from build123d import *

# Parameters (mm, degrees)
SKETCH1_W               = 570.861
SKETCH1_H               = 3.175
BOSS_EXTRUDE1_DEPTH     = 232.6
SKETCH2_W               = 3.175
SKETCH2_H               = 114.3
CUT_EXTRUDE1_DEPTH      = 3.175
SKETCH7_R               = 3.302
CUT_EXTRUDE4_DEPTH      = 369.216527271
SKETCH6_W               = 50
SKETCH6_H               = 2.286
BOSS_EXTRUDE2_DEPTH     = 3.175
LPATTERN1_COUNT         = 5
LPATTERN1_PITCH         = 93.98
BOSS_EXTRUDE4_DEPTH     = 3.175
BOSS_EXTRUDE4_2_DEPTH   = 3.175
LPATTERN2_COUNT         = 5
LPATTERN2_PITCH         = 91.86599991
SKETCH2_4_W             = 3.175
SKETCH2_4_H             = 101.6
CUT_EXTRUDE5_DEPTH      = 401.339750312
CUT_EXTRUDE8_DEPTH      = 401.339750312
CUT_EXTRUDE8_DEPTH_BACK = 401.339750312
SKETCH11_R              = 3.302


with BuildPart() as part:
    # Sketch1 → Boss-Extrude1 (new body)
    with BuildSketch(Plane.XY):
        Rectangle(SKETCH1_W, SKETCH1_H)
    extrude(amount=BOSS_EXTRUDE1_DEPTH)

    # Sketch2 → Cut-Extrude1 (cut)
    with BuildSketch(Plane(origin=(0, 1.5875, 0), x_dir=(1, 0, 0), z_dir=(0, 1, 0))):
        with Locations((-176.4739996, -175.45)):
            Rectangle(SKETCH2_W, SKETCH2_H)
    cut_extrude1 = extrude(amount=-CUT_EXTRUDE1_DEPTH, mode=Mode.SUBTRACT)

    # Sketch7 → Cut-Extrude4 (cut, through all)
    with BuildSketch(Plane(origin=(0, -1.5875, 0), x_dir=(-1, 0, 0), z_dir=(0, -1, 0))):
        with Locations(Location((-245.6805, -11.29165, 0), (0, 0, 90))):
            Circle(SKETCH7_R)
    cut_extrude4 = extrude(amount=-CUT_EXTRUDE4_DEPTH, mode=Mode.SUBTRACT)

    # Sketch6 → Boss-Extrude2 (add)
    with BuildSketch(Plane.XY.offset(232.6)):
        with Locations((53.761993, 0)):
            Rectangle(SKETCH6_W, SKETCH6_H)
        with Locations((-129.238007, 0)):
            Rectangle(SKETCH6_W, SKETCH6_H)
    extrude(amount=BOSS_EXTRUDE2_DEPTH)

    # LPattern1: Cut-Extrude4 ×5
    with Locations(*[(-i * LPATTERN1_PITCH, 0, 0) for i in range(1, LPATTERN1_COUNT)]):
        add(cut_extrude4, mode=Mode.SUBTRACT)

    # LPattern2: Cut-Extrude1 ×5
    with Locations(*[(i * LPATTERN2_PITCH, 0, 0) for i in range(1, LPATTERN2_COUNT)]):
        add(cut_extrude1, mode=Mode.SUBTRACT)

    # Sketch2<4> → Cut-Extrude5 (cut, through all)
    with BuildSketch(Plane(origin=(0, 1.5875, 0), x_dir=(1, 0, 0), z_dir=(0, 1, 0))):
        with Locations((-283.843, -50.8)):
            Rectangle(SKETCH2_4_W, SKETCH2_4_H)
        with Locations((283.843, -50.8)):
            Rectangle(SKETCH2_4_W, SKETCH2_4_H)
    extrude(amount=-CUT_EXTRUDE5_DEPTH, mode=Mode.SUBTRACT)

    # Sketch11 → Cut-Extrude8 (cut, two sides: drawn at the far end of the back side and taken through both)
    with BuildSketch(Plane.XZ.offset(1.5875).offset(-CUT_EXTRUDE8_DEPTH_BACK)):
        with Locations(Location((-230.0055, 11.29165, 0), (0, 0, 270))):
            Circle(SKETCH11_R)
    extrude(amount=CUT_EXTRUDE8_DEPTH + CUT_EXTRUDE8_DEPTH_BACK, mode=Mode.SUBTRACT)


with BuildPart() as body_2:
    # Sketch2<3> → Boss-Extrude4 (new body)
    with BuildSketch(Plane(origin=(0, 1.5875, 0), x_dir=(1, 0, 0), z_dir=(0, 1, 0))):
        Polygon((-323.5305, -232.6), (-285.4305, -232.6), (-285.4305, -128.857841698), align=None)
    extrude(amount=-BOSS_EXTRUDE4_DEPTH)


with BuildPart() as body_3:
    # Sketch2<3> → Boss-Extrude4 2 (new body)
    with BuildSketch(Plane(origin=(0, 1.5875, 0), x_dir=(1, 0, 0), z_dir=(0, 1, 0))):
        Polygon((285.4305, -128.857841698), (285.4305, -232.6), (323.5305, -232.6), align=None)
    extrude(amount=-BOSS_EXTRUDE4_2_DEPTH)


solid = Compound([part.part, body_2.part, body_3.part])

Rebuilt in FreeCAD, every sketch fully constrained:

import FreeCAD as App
import Part
import Sketcher
from FreeCAD import Vector
Q = App.Units.Quantity

doc = App.newDocument("Part")
params = doc.addObject("Spreadsheet::Sheet", "Params")
for row, (alias, value) in enumerate([
    ("sketch1_height", "0.125 in"),
    ("pad1_length", "232.6 mm"),
    ("sketch2_height", "4.5 in"),
    ("sketch2_width", "0.125 in"),
    ("pocket1_length", "0.125 in"),
    ("sketch3_diameter", "0.26 in"),
    ("sketch4_height", "0.09 in"),
    ("pad2_length", "0.125 in"),
    ("linearpattern_pitch", "3.7 in"),
    ("linearpattern2_pitch", "91.866 mm"),
    ("sketch5_height", "4 in"),
    ("sketch5_width", "0.125 in"),
    ("sketch6_diameter", "0.26 in"),
    ("sketch7_width", "1.5 in"),
    ("pad3_length", "0.125 in"),
    ("sketch8_width", "1.5 in"),
    ("pad4_length", "0.125 in"),
], start=1):
    params.set(f"A{row}", alias)
    params.set(f"B{row}", "=" + value)
    params.setAlias(f"B{row}", alias)

body = doc.addObject("PartDesign::Body", "Body")

# Sketch on XY plane
sketch1 = body.newObject("Sketcher::SketchObject", "Sketch")
sketch1.AttachmentSupport = (doc.getObject("XY_Plane"), [""])
sketch1.MapMode = "FlatFace"
sketch1.addGeometry([
    Part.LineSegment(Vector(-285.4, 1.6, 0), Vector(-285.4, -1.6, 0)),
    Part.LineSegment(Vector(-285.4, -1.6, 0), Vector(285.4, -1.6, 0)),
    Part.LineSegment(Vector(285.4, -1.6, 0), Vector(285.4, 1.6, 0)),
    Part.LineSegment(Vector(285.4, 1.6, 0), Vector(-285.4, 1.6, 0)),
], False)
sketch1.addConstraint([
    Sketcher.Constraint("Coincident", 0, 2, 1, 1),
    Sketcher.Constraint("Coincident", 1, 2, 2, 1),
    Sketcher.Constraint("Coincident", 2, 2, 3, 1),
    Sketcher.Constraint("Coincident", 3, 2, 0, 1),
    Sketcher.Constraint("Vertical", 0),
    Sketcher.Constraint("Horizontal", 1),
    Sketcher.Constraint("Vertical", 2),
    Sketcher.Constraint("Horizontal", 3),
    Sketcher.Constraint("Symmetric", 0, 2, 2, 2, -1, 1),
    Sketcher.Constraint("DistanceY", 0, 2, 0, 1, Q("0.125 in")),
    Sketcher.Constraint("DistanceX", 1, 1, 1, 2, 570.861),
])
sketch1.setExpression("Constraints[9]", "Params.sketch1_height")
pad1 = body.newObject("PartDesign::Pad", "Pad")
pad1.Profile = sketch1
pad1.setExpression("Length", "Params.pad1_length")

# Sketch on XZ plane
sketch2 = body.newObject("Sketcher::SketchObject", "Sketch001")
sketch2.AttachmentSupport = (doc.getObject("XZ_Plane"), [""])
sketch2.MapMode = "FlatFace"
sketch2.AttachmentOffset = App.Placement(Vector(0, 0, -0.0625 * 25.4), App.Rotation())
sketch2.addGeometry([
    Part.LineSegment(Vector(-178.1, 118.3, 0), Vector(-178.1, 232.6, 0)),
    Part.LineSegment(Vector(-178.1, 232.6, 0), Vector(-174.9, 232.6, 0)),
    Part.LineSegment(Vector(-174.9, 232.6, 0), Vector(-174.9, 118.3, 0)),
    Part.LineSegment(Vector(-174.9, 118.3, 0), Vector(-178.1, 118.3, 0)),
], False)
sketch2.addConstraint([
    Sketcher.Constraint("Coincident", 0, 2, 1, 1),
    Sketcher.Constraint("Coincident", 1, 2, 2, 1),
    Sketcher.Constraint("Coincident", 2, 2, 3, 1),
    Sketcher.Constraint("Coincident", 3, 2, 0, 1),
    Sketcher.Constraint("Vertical", 0),
    Sketcher.Constraint("Horizontal", 1),
    Sketcher.Constraint("Vertical", 2),
    Sketcher.Constraint("Horizontal", 3),
    Sketcher.Constraint("DistanceY", 0, 1, 0, 2, Q("4.5 in")),
    Sketcher.Constraint("DistanceX", 1, 1, 1, 2, Q("0.125 in")),
    Sketcher.Constraint("DistanceX", 0, 2, -1, 1, 178.0615),
    Sketcher.Constraint("DistanceY", -1, 1, 0, 2, 232.6),
])
sketch2.setExpression("Constraints[8]", "Params.sketch2_height")
sketch2.setExpression("Constraints[9]", "Params.sketch2_width")
pocket1 = body.newObject("PartDesign::Pocket", "Pocket")
pocket1.Profile = sketch2
pocket1.setExpression("Length", "Params.pocket1_length")
pocket1.Reversed = True

# Sketch on XZ plane
sketch3 = body.newObject("Sketcher::SketchObject", "Sketch002")
sketch3.AttachmentSupport = (doc.getObject("XZ_Plane"), [""])
sketch3.MapMode = "FlatFace"
sketch3.AttachmentOffset = App.Placement(Vector(0, 0, 0.0625 * 25.4), App.Rotation())
sketch3.addGeometry(Part.Circle(Vector(245.7, 11.3, 0), Vector(0, 0, 1), 3.3), False)
sketch3.addConstraint([
    Sketcher.Constraint("Diameter", 0, Q("0.26 in")),
    Sketcher.Constraint("DistanceX", -1, 1, 0, 3, 245.6805),
    Sketcher.Constraint("DistanceY", -1, 1, 0, 3, 11.29165),
])
sketch3.setExpression("Constraints[0]", "Params.sketch3_diameter")
pocket2 = body.newObject("PartDesign::Pocket", "Pocket001")
pocket2.Profile = sketch3
pocket2.Type = "ThroughAll"

# Sketch on XY plane
sketch4 = body.newObject("Sketcher::SketchObject", "Sketch003")
sketch4.AttachmentSupport = (doc.getObject("XY_Plane"), [""])
sketch4.MapMode = "FlatFace"
sketch4.AttachmentOffset = App.Placement(Vector(0, 0, 232.6), App.Rotation())
sketch4.addGeometry([
    Part.LineSegment(Vector(28.8, 1.1, 0), Vector(28.8, -1.1, 0)),  # 0
    Part.LineSegment(Vector(28.8, -1.1, 0), Vector(78.8, -1.1, 0)),  # 1
    Part.LineSegment(Vector(78.8, -1.1, 0), Vector(78.8, 1.1, 0)),  # 2
    Part.LineSegment(Vector(78.8, 1.1, 0), Vector(28.8, 1.1, 0)),  # 3
    Part.LineSegment(Vector(-154.2, 1.1, 0), Vector(-154.2, -1.1, 0)),  # 4
    Part.LineSegment(Vector(-154.2, -1.1, 0), Vector(-104.2, -1.1, 0)),  # 5
    Part.LineSegment(Vector(-104.2, -1.1, 0), Vector(-104.2, 1.1, 0)),  # 6
    Part.LineSegment(Vector(-104.2, 1.1, 0), Vector(-154.2, 1.1, 0)),  # 7
], False)
sketch4.addConstraint([
    Sketcher.Constraint("Coincident", 0, 2, 1, 1),
    Sketcher.Constraint("Coincident", 1, 2, 2, 1),
    Sketcher.Constraint("Coincident", 2, 2, 3, 1),
    Sketcher.Constraint("Coincident", 3, 2, 0, 1),
    Sketcher.Constraint("Coincident", 4, 2, 5, 1),
    Sketcher.Constraint("Coincident", 5, 2, 6, 1),
    Sketcher.Constraint("Coincident", 6, 2, 7, 1),
    Sketcher.Constraint("Coincident", 7, 2, 4, 1),
    Sketcher.Constraint("Vertical", 0),
    Sketcher.Constraint("Horizontal", 1),
    Sketcher.Constraint("Vertical", 2),
    Sketcher.Constraint("Horizontal", 3),
    Sketcher.Constraint("Vertical", 4),
    Sketcher.Constraint("Horizontal", 5),
    Sketcher.Constraint("Vertical", 6),
    Sketcher.Constraint("Horizontal", 7),
    Sketcher.Constraint("Horizontal", 1, 2, 4, 2),
    Sketcher.Constraint("Horizontal", 3, 2, 6, 2),
    Sketcher.Constraint("Equal", 3, 5),
    Sketcher.Constraint("DistanceY", 0, 2, 0, 1, Q("0.09 in")),
    Sketcher.Constraint("DistanceY", 0, 2, -1, 1, Q("0.045 in")),
    Sketcher.Constraint("DistanceX", 1, 1, 1, 2, 50.0),
    Sketcher.Constraint("DistanceX", 4, 2, 0, 2, 183.0),
    Sketcher.Constraint("DistanceX", -1, 1, 0, 2, 28.761993),
])
sketch4.setExpression("Constraints[19]", "Params.sketch4_height")
pad2 = body.newObject("PartDesign::Pad", "Pad001")
pad2.Profile = sketch4
pad2.setExpression("Length", "Params.pad2_length")
doc.recompute()

linearpattern = body.newObject("PartDesign::LinearPattern", "LinearPattern")
linearpattern.Originals = [pocket2]
linearpattern.Direction = (doc.getObject("X_Axis"), [""])
linearpattern.Mode = "offset"
linearpattern.setExpression("Offset", "Params.linearpattern_pitch")
linearpattern.Occurrences = 5
linearpattern.Reversed = True
body.Tip = linearpattern
doc.recompute()

linearpattern2 = body.newObject("PartDesign::LinearPattern", "LinearPattern001")
linearpattern2.Originals = [pocket1]
linearpattern2.Direction = (doc.getObject("X_Axis"), [""])
linearpattern2.Mode = "offset"
linearpattern2.setExpression("Offset", "Params.linearpattern2_pitch")
linearpattern2.Occurrences = 5
body.Tip = linearpattern2

# Sketch on XZ plane
sketch5 = body.newObject("Sketcher::SketchObject", "Sketch004")
sketch5.AttachmentSupport = (doc.getObject("XZ_Plane"), [""])
sketch5.MapMode = "FlatFace"
sketch5.AttachmentOffset = App.Placement(Vector(0, 0, -0.0625 * 25.4), App.Rotation())
sketch5.addGeometry([
    Part.LineSegment(Vector(-285.4, 0, 0), Vector(-285.4, 101.6, 0)),  # 0
    Part.LineSegment(Vector(-285.4, 101.6, 0), Vector(-282.3, 101.6, 0)),  # 1
    Part.LineSegment(Vector(-282.3, 101.6, 0), Vector(-282.3, 0, 0)),  # 2
    Part.LineSegment(Vector(-282.3, 0, 0), Vector(-285.4, 0, 0)),  # 3
    Part.LineSegment(Vector(282.3, 0, 0), Vector(282.3, 101.6, 0)),  # 4
    Part.LineSegment(Vector(282.3, 101.6, 0), Vector(285.4, 101.6, 0)),  # 5
    Part.LineSegment(Vector(285.4, 101.6, 0), Vector(285.4, 0, 0)),  # 6
    Part.LineSegment(Vector(285.4, 0, 0), Vector(282.3, 0, 0)),  # 7
], False)
sketch5.addConstraint([
    Sketcher.Constraint("Coincident", 0, 2, 1, 1),
    Sketcher.Constraint("Coincident", 1, 2, 2, 1),
    Sketcher.Constraint("Coincident", 2, 2, 3, 1),
    Sketcher.Constraint("Coincident", 3, 2, 0, 1),
    Sketcher.Constraint("Coincident", 4, 2, 5, 1),
    Sketcher.Constraint("Coincident", 5, 2, 6, 1),
    Sketcher.Constraint("Coincident", 6, 2, 7, 1),
    Sketcher.Constraint("Coincident", 7, 2, 4, 1),
    Sketcher.Constraint("Vertical", 0),
    Sketcher.Constraint("Horizontal", 1),
    Sketcher.Constraint("Vertical", 2),
    Sketcher.Constraint("Horizontal", 3),
    Sketcher.Constraint("Vertical", 4),
    Sketcher.Constraint("Horizontal", 5),
    Sketcher.Constraint("Vertical", 6),
    Sketcher.Constraint("Horizontal", 7),
    Sketcher.Constraint("Symmetric", 3, 2, 6, 2, -1, 1),
    Sketcher.Constraint("Symmetric", 1, 2, 4, 2, -2),
    Sketcher.Constraint("PointOnObject", 2, 2, -1),
    Sketcher.Constraint("DistanceY", 0, 1, 0, 2, Q("4 in")),
    Sketcher.Constraint("DistanceX", 1, 1, 1, 2, Q("0.125 in")),
    Sketcher.Constraint("DistanceX", 0, 2, -1, 1, 285.4305),
])
sketch5.setExpression("Constraints[19]", "Params.sketch5_height")
sketch5.setExpression("Constraints[20]", "Params.sketch5_width")
pocket3 = body.newObject("PartDesign::Pocket", "Pocket002")
pocket3.Profile = sketch5
pocket3.Type = "ThroughAll"
pocket3.Reversed = True

# Sketch on XZ plane
sketch6 = body.newObject("Sketcher::SketchObject", "Sketch005")
sketch6.AttachmentSupport = (doc.getObject("XZ_Plane"), [""])
sketch6.MapMode = "FlatFace"
sketch6.AttachmentOffset = App.Placement(Vector(0, 0, 0.0625 * 25.4), App.Rotation())
sketch6.addGeometry(Part.Circle(Vector(-230, 11.3, 0), Vector(0, 0, 1), 3.3), False)
sketch6.addConstraint([
    Sketcher.Constraint("Diameter", 0, Q("0.26 in")),
    Sketcher.Constraint("DistanceX", 0, 3, -1, 1, 230.0055),
    Sketcher.Constraint("DistanceY", -1, 1, 0, 3, 11.29165),
])
sketch6.setExpression("Constraints[0]", "Params.sketch6_diameter")
pocket4 = body.newObject("PartDesign::Pocket", "Pocket003")
pocket4.Profile = sketch6
pocket4.Type = "ThroughAll"
pocket4.Midplane = True
body2 = doc.addObject("PartDesign::Body", "Body001")

# Sketch on XZ plane
sketch7 = body2.newObject("Sketcher::SketchObject", "Sketch006")
sketch7.AttachmentSupport = (doc.getObject("XZ_Plane001"), [""])
sketch7.MapMode = "FlatFace"
sketch7.AttachmentOffset = App.Placement(Vector(0, 0, -0.0625 * 25.4), App.Rotation())
sketch7.addGeometry([
    Part.LineSegment(Vector(-324, 233, 0), Vector(-285, 233, 0)),
    Part.LineSegment(Vector(-285, 233, 0), Vector(-285, 129, 0)),
    Part.LineSegment(Vector(-285, 129, 0), Vector(-324, 233, 0)),
], False)
sketch7.addConstraint([
    Sketcher.Constraint("Coincident", 0, 2, 1, 1),
    Sketcher.Constraint("Coincident", 1, 2, 2, 1),
    Sketcher.Constraint("Coincident", 2, 2, 0, 1),
    Sketcher.Constraint("Horizontal", 0),
    Sketcher.Constraint("Vertical", 1),
    Sketcher.Constraint("DistanceX", 0, 1, 0, 2, Q("1.5 in")),
    Sketcher.Constraint("DistanceY", 1, 2, 1, 1, 103.742158),
    Sketcher.Constraint("DistanceX", 0, 2, -1, 1, 285.4305),
    Sketcher.Constraint("DistanceY", -1, 1, 0, 2, 232.6),
])
sketch7.setExpression("Constraints[5]", "Params.sketch7_width")
pad3 = body2.newObject("PartDesign::Pad", "Pad002")
pad3.Profile = sketch7
pad3.setExpression("Length", "Params.pad3_length")
body3 = doc.addObject("PartDesign::Body", "Body002")

# Sketch on XZ plane
sketch8 = body3.newObject("Sketcher::SketchObject", "Sketch007")
sketch8.AttachmentSupport = (doc.getObject("XZ_Plane002"), [""])
sketch8.MapMode = "FlatFace"
sketch8.AttachmentOffset = App.Placement(Vector(0, 0, -0.0625 * 25.4), App.Rotation())
sketch8.addGeometry([
    Part.LineSegment(Vector(285, 129, 0), Vector(285, 233, 0)),
    Part.LineSegment(Vector(285, 233, 0), Vector(324, 233, 0)),
    Part.LineSegment(Vector(324, 233, 0), Vector(285, 129, 0)),
], False)
sketch8.addConstraint([
    Sketcher.Constraint("Coincident", 0, 2, 1, 1),
    Sketcher.Constraint("Coincident", 1, 2, 2, 1),
    Sketcher.Constraint("Coincident", 2, 2, 0, 1),
    Sketcher.Constraint("Vertical", 0),
    Sketcher.Constraint("Horizontal", 1),
    Sketcher.Constraint("DistanceX", 1, 1, 1, 2, Q("1.5 in")),
    Sketcher.Constraint("DistanceY", 0, 1, 0, 2, 103.742158),
    Sketcher.Constraint("DistanceX", -1, 1, 0, 2, 285.4305),
    Sketcher.Constraint("DistanceY", -1, 1, 0, 2, 232.6),
])
sketch8.setExpression("Constraints[5]", "Params.sketch8_width")
pad4 = body3.newObject("PartDesign::Pad", "Pad003")
pad4.Profile = sketch8
pad4.setExpression("Length", "Params.pad4_length")

doc.recompute()
